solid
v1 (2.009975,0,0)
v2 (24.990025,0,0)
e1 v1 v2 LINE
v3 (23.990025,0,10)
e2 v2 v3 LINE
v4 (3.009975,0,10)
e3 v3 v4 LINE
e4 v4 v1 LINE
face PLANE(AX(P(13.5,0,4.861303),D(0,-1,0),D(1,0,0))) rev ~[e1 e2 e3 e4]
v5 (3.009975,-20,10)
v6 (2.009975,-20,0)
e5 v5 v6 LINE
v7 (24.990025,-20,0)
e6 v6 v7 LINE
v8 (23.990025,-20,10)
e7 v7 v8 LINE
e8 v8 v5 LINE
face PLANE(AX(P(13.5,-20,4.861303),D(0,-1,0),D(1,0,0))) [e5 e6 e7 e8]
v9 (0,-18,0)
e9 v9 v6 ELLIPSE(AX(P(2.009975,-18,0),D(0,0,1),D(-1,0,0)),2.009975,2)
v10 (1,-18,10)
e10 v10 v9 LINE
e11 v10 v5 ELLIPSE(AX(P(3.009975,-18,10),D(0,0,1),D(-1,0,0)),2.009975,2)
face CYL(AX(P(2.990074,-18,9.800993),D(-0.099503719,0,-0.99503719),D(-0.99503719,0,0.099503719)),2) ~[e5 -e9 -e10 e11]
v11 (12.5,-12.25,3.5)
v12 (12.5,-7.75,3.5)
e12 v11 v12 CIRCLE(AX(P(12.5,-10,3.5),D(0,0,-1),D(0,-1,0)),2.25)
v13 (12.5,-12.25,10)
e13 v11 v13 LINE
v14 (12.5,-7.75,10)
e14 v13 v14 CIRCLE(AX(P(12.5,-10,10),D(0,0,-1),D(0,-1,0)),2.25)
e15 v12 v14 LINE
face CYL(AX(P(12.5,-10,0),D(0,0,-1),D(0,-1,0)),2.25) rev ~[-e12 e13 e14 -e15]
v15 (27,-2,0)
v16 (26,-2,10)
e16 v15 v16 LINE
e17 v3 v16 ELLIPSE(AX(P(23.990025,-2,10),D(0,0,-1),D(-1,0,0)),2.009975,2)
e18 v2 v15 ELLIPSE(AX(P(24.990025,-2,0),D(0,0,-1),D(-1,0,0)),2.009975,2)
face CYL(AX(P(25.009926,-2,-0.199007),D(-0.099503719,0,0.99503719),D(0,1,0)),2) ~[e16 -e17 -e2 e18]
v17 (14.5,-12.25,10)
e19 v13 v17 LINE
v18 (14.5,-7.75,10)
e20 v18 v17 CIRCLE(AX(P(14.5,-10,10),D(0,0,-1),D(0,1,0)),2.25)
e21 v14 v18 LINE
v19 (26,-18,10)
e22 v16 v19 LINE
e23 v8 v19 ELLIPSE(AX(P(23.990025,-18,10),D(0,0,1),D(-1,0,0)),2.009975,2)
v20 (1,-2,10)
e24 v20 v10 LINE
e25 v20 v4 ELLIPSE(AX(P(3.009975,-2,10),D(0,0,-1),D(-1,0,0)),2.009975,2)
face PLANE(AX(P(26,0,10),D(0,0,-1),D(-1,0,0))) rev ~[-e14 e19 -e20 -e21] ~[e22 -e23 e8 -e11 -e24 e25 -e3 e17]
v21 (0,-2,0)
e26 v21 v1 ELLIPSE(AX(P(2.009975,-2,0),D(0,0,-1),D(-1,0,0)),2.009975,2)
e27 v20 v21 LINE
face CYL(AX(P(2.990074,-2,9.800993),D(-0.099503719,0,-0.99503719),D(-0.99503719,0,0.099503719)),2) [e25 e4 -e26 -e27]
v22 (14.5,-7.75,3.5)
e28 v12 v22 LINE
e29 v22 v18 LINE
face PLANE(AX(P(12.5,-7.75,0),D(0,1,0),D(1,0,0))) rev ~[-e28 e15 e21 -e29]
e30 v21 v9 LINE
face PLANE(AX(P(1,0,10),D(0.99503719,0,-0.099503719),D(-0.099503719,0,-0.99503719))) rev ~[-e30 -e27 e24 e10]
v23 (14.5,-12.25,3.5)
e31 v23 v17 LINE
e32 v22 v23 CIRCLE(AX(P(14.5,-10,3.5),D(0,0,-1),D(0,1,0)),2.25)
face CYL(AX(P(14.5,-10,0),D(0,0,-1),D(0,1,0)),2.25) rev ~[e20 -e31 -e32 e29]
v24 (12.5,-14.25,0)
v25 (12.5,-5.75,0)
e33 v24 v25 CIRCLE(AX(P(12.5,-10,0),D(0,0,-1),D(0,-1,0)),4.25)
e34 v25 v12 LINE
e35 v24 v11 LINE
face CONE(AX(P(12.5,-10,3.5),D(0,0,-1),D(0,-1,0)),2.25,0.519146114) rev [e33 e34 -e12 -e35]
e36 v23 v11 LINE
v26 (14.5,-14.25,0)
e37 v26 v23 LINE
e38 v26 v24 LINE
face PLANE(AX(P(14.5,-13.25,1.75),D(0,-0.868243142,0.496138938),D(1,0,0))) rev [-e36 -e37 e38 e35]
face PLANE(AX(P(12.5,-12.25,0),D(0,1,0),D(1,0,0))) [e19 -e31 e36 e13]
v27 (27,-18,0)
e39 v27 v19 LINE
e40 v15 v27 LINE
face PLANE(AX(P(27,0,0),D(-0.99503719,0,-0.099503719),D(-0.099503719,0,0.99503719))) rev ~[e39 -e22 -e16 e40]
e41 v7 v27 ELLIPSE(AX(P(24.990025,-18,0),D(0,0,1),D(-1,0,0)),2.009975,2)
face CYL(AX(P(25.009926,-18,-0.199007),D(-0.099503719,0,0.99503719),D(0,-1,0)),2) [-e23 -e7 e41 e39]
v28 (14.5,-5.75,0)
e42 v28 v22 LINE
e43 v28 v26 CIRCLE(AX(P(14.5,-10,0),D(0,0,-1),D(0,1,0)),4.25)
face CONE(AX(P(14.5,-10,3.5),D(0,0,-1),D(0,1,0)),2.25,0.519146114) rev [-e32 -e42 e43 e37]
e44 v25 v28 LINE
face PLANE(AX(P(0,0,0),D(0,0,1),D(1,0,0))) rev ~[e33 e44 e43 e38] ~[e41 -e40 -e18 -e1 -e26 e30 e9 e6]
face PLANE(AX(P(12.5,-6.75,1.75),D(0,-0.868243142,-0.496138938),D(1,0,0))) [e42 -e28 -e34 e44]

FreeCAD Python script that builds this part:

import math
import FreeCAD as App
import Part
import Sketcher
from FreeCAD import Vector
Q = App.Units.Quantity


def edges_at(feature, points):
    """Names of the edges that pass closest to the given points."""
    edges = feature.Shape.Edges
    near = lambda p: min(range(len(edges)), key=lambda i: edges[i].distToShape(Part.Vertex(*p))[0])
    return sorted({f"Edge{near(p) + 1}" for p in points})

doc = App.newDocument("Part")
body = doc.addObject("PartDesign::Body", "Body")

sketch1 = doc.addObject("Sketcher::SketchObject", "Sketch")
body.addObject(sketch1)
sketch1.AttachmentSupport = (doc.XZ_Plane, [""])
sketch1.MapMode = "FlatFace"
sketch1.addGeometry([
    Part.LineSegment(Vector(0, 0, 0), Vector(27, 0, 0)),
    Part.LineSegment(Vector(27, 0, 0), Vector(26, 10, 0)),
    Part.LineSegment(Vector(26, 10, 0), Vector(1, 10, 0)),
    Part.LineSegment(Vector(1, 10, 0), Vector(0, 0, 0)),
], False)
sketch1.addConstraint([
    Sketcher.Constraint("Coincident", 0, 2, 1, 1),
    Sketcher.Constraint("Coincident", 1, 2, 2, 1),
    Sketcher.Constraint("Coincident", 2, 2, 3, 1),
    Sketcher.Constraint("Coincident", 3, 2, 0, 1),
    Sketcher.Constraint("Horizontal", 0),
    Sketcher.Constraint("Horizontal", 2),
    Sketcher.Constraint("Coincident", 3, 2, -1, 1),
    Sketcher.Constraint("Equal", 1, 3),
    Sketcher.Constraint("DistanceX", 0, 1, 0, 2, Q("27 mm")),
    Sketcher.Constraint("DistanceX", 2, 2, 2, 1, Q("25 mm")),
    Sketcher.Constraint("DistanceY", -1, 1, 1, 2, Q("10 mm")),
])
pad1 = doc.addObject("PartDesign::Pad", "Pad")
body.addObject(pad1)
pad1.Profile = sketch1
pad1.Length = 20

sketch2 = doc.addObject("Sketcher::SketchObject", "Sketch001")
body.addObject(sketch2)
sketch2.AttachmentSupport = (doc.XY_Plane, [""])
sketch2.MapMode = "FlatFace"
sketch2.addGeometry([
    Part.ArcOfCircle(Part.Circle(Vector(12.5, -10, 0), Vector(0, 0, 1), 2.2), math.radians(90), math.radians(270)),
    Part.LineSegment(Vector(12.5, -7.8, 0), Vector(14.5, -7.8, 0)),
    Part.ArcOfCircle(Part.Circle(Vector(14.5, -10, 0), Vector(0, 0, 1), 2.2), math.radians(-90), math.radians(90)),
    Part.LineSegment(Vector(14.5, -12.2, 0), Vector(12.5, -12.2, 0)),
], False)
sketch2.addConstraint([
    Sketcher.Constraint("Tangent", 0, 1, 1, 1),
    Sketcher.Constraint("Tangent", 1, 2, 2, 2),
    Sketcher.Constraint("Tangent", 2, 1, 3, 1),
    Sketcher.Constraint("Tangent", 3, 2, 0, 2),
    Sketcher.Constraint("Horizontal", 1),
    Sketcher.Constraint("Horizontal", 3),
    Sketcher.Constraint("DistanceX", 1, 1, 1, 2, Q("2 mm")),
    Sketcher.Constraint("Radius", 0, Q("2.25 mm")),
    Sketcher.Constraint("DistanceY", 0, 3, -1, 1, Q("10 mm")),
    Sketcher.Constraint("DistanceX", -1, 1, 0, 3, Q("12.5 mm")),
])
pocket1 = doc.addObject("PartDesign::Pocket", "Pocket")
body.addObject(pocket1)
pocket1.Profile = sketch2
pocket1.Type = "ThroughAll"
pocket1.Reversed = True
doc.recompute()

chamfer = doc.addObject("PartDesign::Chamfer", "Chamfer")
body.addObject(chamfer)
chamfer.Base = (pocket1, edges_at(pocket1, [
    (10.25, -10, 0),
    (13.5, -12.25, 0),
    (16.75, -10, 0),
    (13.5, -7.75, 0),
]))
chamfer.ChamferType = "Two distances"
chamfer.Size = 2
chamfer.Size2 = 3.5
doc.recompute()

fillet = doc.addObject("PartDesign::Fillet", "Fillet")
body.addObject(fillet)
fillet.Base = (chamfer, edges_at(chamfer, [
    (26.5, -20, 5),
    (0.5, -20, 5),
    (26.5, 0, 5),
    (0.5, 0, 5),
]))
fillet.Radius = 2

doc.recompute()
